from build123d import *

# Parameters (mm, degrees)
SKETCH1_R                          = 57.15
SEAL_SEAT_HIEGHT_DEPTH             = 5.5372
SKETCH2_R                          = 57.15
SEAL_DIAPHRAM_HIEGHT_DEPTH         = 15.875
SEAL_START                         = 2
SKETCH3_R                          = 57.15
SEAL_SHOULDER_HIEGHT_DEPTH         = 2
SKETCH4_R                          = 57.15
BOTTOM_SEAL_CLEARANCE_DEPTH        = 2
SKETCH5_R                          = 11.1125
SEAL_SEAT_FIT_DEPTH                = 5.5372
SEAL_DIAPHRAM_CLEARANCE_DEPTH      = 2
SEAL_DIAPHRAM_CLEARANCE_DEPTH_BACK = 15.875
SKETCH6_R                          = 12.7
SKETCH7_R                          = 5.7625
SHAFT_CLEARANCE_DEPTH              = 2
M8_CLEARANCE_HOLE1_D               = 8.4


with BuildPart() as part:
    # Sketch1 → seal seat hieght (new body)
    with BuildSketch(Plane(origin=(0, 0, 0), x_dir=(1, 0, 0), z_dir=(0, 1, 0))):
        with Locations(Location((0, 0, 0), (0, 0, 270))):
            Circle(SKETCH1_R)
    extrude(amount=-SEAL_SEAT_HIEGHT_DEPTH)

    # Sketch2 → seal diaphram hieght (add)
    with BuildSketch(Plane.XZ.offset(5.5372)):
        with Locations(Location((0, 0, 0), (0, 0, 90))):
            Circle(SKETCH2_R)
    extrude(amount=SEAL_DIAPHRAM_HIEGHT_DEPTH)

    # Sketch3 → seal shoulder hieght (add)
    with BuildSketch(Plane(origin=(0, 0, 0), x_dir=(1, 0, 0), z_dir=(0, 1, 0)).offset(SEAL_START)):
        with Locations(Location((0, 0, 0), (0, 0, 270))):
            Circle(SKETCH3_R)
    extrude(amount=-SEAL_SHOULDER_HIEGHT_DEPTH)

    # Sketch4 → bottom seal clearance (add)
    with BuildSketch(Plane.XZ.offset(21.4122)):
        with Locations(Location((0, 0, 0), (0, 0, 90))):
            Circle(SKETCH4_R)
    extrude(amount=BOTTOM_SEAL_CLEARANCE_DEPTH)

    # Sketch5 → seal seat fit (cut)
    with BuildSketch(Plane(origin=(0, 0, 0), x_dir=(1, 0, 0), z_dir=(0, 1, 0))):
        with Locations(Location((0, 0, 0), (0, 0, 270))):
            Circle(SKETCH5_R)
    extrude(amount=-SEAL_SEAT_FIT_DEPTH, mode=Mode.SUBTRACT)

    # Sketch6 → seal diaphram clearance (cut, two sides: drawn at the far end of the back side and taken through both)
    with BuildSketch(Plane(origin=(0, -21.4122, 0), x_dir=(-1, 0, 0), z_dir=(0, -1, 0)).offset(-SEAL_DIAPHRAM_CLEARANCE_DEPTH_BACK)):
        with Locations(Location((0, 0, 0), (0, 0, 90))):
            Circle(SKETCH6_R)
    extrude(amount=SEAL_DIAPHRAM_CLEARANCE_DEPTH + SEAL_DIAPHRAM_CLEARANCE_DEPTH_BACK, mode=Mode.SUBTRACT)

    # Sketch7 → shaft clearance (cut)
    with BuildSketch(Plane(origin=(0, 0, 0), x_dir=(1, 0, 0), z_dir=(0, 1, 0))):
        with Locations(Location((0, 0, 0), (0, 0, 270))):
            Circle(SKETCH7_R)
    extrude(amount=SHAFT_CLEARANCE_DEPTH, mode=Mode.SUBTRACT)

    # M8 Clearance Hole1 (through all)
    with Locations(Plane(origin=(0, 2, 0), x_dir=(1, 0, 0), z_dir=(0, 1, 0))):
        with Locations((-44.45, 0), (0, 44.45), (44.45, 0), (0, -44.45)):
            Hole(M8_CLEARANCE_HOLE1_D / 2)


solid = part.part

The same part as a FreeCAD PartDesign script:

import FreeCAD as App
import Part
import Sketcher
from FreeCAD import Vector
Q = App.Units.Quantity

doc = App.newDocument("Part")
params = doc.addObject("Spreadsheet::Sheet", "Params")
for row, (alias, value) in enumerate([
    ("sketch1_diameter", "4.5 in"),
    ("pad1_length", "0.218 in"),
    ("sketch2_diameter", "4.5 in"),
    ("pad2_length", "0.625 in"),
    ("sketch3_diameter", "4.5 in"),
    ("pad3_length", "2 mm"),
    ("sketch4_diameter", "4.5 in"),
    ("pad4_length", "2 mm"),
    ("sketch5_diameter", "0.875 in"),
    ("pocket1_length", "0.218 in"),
    ("sketch6_diameter", "1 in"),
    ("pocket2_length", "2 mm"),
    ("pocket2_length2", "0.625 in"),
    ("pocket3_length", "2 mm"),
    ("hole_diameter", "8.4 mm"),
], start=1):
    params.set(f"A{row}", alias)
    params.set(f"B{row}", "=" + value)
    params.setAlias(f"B{row}", alias)

body = doc.addObject("PartDesign::Body", "Body")

# Sketch on XZ plane
sketch1 = doc.addObject("Sketcher::SketchObject", "Sketch")
body.addObject(sketch1)
sketch1.AttachmentSupport = (doc.XZ_Plane, [""])
sketch1.MapMode = "FlatFace"
sketch1.addGeometry(Part.Circle(Vector(0, 0, 0), Vector(0, 0, 1), 57), False)
sketch1.addConstraint(Sketcher.Constraint("Coincident", 0, 3, -1, 1))
sketch1.addConstraint(Sketcher.Constraint("Diameter", 0, Q("4.5 in")))
sketch1.setExpression("Constraints[1]", "Params.sketch1_diameter")
pad1 = doc.addObject("PartDesign::Pad", "Pad")
body.addObject(pad1)
pad1.Profile = sketch1
pad1.setExpression("Length", "Params.pad1_length")

# Sketch on XZ plane
sketch2 = doc.addObject("Sketcher::SketchObject", "Sketch001")
body.addObject(sketch2)
sketch2.AttachmentSupport = (doc.XZ_Plane, [""])
sketch2.MapMode = "FlatFace"
sketch2.AttachmentOffset = App.Placement(Vector(0, 0, 0.218 * 25.4), App.Rotation())
sketch2.addGeometry(Part.Circle(Vector(0, 0, 0), Vector(0, 0, 1), 57), False)
sketch2.addConstraint(Sketcher.Constraint("Coincident", 0, 3, -1, 1))
sketch2.addConstraint(Sketcher.Constraint("Diameter", 0, Q("4.5 in")))
sketch2.setExpression("Constraints[1]", "Params.sketch2_diameter")
pad2 = doc.addObject("PartDesign::Pad", "Pad001")
body.addObject(pad2)
pad2.Profile = sketch2
pad2.setExpression("Length", "Params.pad2_length")

# Sketch on XZ plane
sketch3 = doc.addObject("Sketcher::SketchObject", "Sketch002")
body.addObject(sketch3)
sketch3.AttachmentSupport = (doc.XZ_Plane, [""])
sketch3.MapMode = "FlatFace"
sketch3.AttachmentOffset = App.Placement(Vector(0, 0, -2), App.Rotation())
sketch3.addGeometry(Part.Circle(Vector(0, 0, 0), Vector(0, 0, 1), 57), False)
sketch3.addConstraint(Sketcher.Constraint("Coincident", 0, 3, -1, 1))
sketch3.addConstraint(Sketcher.Constraint("Diameter", 0, Q("4.5 in")))
sketch3.setExpression("Constraints[1]", "Params.sketch3_diameter")
pad3 = doc.addObject("PartDesign::Pad", "Pad002")
body.addObject(pad3)
pad3.Profile = sketch3
pad3.setExpression("Length", "Params.pad3_length")

# Sketch on XZ plane
sketch4 = doc.addObject("Sketcher::SketchObject", "Sketch003")
body.addObject(sketch4)
sketch4.AttachmentSupport = (doc.XZ_Plane, [""])
sketch4.MapMode = "FlatFace"
sketch4.AttachmentOffset = App.Placement(Vector(0, 0, 0.843 * 25.4), App.Rotation())
sketch4.addGeometry(Part.Circle(Vector(0, 0, 0), Vector(0, 0, 1), 57), False)
sketch4.addConstraint(Sketcher.Constraint("Coincident", 0, 3, -1, 1))
sketch4.addConstraint(Sketcher.Constraint("Diameter", 0, Q("4.5 in")))
sketch4.setExpression("Constraints[1]", "Params.sketch4_diameter")
pad4 = doc.addObject("PartDesign::Pad", "Pad003")
body.addObject(pad4)
pad4.Profile = sketch4
pad4.setExpression("Length", "Params.pad4_length")

# Sketch on XZ plane
sketch5 = doc.addObject("Sketcher::SketchObject", "Sketch004")
body.addObject(sketch5)
sketch5.AttachmentSupport = (doc.XZ_Plane, [""])
sketch5.MapMode = "FlatFace"
sketch5.addGeometry(Part.Circle(Vector(0, 0, 0), Vector(0, 0, 1), 11), False)
sketch5.addConstraint(Sketcher.Constraint("Coincident", 0, 3, -1, 1))
sketch5.addConstraint(Sketcher.Constraint("Diameter", 0, Q("0.875 in")))
sketch5.setExpression("Constraints[1]", "Params.sketch5_diameter")
pocket1 = doc.addObject("PartDesign::Pocket", "Pocket")
body.addObject(pocket1)
pocket1.Profile = sketch5
pocket1.setExpression("Length", "Params.pocket1_length")
pocket1.Reversed = True

# Sketch on XZ plane
sketch6 = doc.addObject("Sketcher::SketchObject", "Sketch005")
body.addObject(sketch6)
sketch6.AttachmentSupport = (doc.XZ_Plane, [""])
sketch6.MapMode = "FlatFace"
sketch6.AttachmentOffset = App.Placement(Vector(0, 0, 0.843 * 25.4), App.Rotation())
sketch6.addGeometry(Part.Circle(Vector(0, 0, 0), Vector(0, 0, 1), 13), False)
sketch6.addConstraint(Sketcher.Constraint("Coincident", 0, 3, -1, 1))
sketch6.addConstraint(Sketcher.Constraint("Diameter", 0, Q("1 in")))
sketch6.setExpression("Constraints[1]", "Params.sketch6_diameter")
pocket2 = doc.addObject("PartDesign::Pocket", "Pocket001")
body.addObject(pocket2)
pocket2.Profile = sketch6
pocket2.Type = "TwoLengths"
pocket2.setExpression("Length", "Params.pocket2_length")
pocket2.setExpression("Length2", "Params.pocket2_length2")
pocket2.Reversed = True

# Sketch on XZ plane
sketch7 = doc.addObject("Sketcher::SketchObject", "Sketch006")
body.addObject(sketch7)
sketch7.AttachmentSupport = (doc.XZ_Plane, [""])
sketch7.MapMode = "FlatFace"
sketch7.addGeometry(Part.Circle(Vector(0, 0, 0), Vector(0, 0, 1), 6), False)
sketch7.addConstraint(Sketcher.Constraint("Coincident", 0, 3, -1, 1))
sketch7.addConstraint(Sketcher.Constraint("Diameter", 0, 11.525))
pocket3 = doc.addObject("PartDesign::Pocket", "Pocket002")
body.addObject(pocket3)
pocket3.Profile = sketch7
pocket3.setExpression("Length", "Params.pocket3_length")

# Sketch on XZ plane
sketch8 = doc.addObject("Sketcher::SketchObject", "Sketch007")
body.addObject(sketch8)
sketch8.AttachmentSupport = (doc.XZ_Plane, [""])
sketch8.MapMode = "FlatFace"
sketch8.AttachmentOffset = App.Placement(Vector(0, 0, -2), App.Rotation())
sketch8.addGeometry(Part.Circle(Vector(-44.5, 0, 0), Vector(0, 0, 1), 4.2), False)
sketch8.addGeometry(Part.Circle(Vector(0, -44.5, 0), Vector(0, 0, 1), 4.2), False)
sketch8.addGeometry(Part.Circle(Vector(44.5, 0, 0), Vector(0, 0, 1), 4.2), False)
sketch8.addGeometry(Part.Circle(Vector(0, 44.5, 0), Vector(0, 0, 1), 4.2), False)
sketch8.addConstraint(Sketcher.Constraint("Equal", 0, 1))
sketch8.addConstraint(Sketcher.Constraint("Equal", 1, 2))
sketch8.addConstraint(Sketcher.Constraint("Equal", 2, 3))
sketch8.addConstraint(Sketcher.Constraint("Symmetric", 0, 3, 2, 3, -1, 1))
sketch8.addConstraint(Sketcher.Constraint("Symmetric", 1, 3, 3, 3, -1, 1))
sketch8.addConstraint(Sketcher.Constraint("PointOnObject", 0, 3, -1))
sketch8.addConstraint(Sketcher.Constraint("PointOnObject", 1, 3, -2))
sketch8.addConstraint(Sketcher.Constraint("DistanceX", 0, 3, 2, 3, Q("3.5 in")))
sketch8.addConstraint(Sketcher.Constraint("DistanceY", 1, 3, 3, 3, Q("3.5 in")))
sketch8.addConstraint(Sketcher.Constraint("Diameter", 0, 8.4))
doc.recompute()
hole = doc.addObject("PartDesign::Hole", "Hole")
body.addObject(hole)
hole.Profile = sketch8
hole.ThreadType = "None"
hole.setExpression("Diameter", "Params.hole_diameter")
hole.DepthType = "ThroughAll"
hole.Reversed = True

doc.recompute()
